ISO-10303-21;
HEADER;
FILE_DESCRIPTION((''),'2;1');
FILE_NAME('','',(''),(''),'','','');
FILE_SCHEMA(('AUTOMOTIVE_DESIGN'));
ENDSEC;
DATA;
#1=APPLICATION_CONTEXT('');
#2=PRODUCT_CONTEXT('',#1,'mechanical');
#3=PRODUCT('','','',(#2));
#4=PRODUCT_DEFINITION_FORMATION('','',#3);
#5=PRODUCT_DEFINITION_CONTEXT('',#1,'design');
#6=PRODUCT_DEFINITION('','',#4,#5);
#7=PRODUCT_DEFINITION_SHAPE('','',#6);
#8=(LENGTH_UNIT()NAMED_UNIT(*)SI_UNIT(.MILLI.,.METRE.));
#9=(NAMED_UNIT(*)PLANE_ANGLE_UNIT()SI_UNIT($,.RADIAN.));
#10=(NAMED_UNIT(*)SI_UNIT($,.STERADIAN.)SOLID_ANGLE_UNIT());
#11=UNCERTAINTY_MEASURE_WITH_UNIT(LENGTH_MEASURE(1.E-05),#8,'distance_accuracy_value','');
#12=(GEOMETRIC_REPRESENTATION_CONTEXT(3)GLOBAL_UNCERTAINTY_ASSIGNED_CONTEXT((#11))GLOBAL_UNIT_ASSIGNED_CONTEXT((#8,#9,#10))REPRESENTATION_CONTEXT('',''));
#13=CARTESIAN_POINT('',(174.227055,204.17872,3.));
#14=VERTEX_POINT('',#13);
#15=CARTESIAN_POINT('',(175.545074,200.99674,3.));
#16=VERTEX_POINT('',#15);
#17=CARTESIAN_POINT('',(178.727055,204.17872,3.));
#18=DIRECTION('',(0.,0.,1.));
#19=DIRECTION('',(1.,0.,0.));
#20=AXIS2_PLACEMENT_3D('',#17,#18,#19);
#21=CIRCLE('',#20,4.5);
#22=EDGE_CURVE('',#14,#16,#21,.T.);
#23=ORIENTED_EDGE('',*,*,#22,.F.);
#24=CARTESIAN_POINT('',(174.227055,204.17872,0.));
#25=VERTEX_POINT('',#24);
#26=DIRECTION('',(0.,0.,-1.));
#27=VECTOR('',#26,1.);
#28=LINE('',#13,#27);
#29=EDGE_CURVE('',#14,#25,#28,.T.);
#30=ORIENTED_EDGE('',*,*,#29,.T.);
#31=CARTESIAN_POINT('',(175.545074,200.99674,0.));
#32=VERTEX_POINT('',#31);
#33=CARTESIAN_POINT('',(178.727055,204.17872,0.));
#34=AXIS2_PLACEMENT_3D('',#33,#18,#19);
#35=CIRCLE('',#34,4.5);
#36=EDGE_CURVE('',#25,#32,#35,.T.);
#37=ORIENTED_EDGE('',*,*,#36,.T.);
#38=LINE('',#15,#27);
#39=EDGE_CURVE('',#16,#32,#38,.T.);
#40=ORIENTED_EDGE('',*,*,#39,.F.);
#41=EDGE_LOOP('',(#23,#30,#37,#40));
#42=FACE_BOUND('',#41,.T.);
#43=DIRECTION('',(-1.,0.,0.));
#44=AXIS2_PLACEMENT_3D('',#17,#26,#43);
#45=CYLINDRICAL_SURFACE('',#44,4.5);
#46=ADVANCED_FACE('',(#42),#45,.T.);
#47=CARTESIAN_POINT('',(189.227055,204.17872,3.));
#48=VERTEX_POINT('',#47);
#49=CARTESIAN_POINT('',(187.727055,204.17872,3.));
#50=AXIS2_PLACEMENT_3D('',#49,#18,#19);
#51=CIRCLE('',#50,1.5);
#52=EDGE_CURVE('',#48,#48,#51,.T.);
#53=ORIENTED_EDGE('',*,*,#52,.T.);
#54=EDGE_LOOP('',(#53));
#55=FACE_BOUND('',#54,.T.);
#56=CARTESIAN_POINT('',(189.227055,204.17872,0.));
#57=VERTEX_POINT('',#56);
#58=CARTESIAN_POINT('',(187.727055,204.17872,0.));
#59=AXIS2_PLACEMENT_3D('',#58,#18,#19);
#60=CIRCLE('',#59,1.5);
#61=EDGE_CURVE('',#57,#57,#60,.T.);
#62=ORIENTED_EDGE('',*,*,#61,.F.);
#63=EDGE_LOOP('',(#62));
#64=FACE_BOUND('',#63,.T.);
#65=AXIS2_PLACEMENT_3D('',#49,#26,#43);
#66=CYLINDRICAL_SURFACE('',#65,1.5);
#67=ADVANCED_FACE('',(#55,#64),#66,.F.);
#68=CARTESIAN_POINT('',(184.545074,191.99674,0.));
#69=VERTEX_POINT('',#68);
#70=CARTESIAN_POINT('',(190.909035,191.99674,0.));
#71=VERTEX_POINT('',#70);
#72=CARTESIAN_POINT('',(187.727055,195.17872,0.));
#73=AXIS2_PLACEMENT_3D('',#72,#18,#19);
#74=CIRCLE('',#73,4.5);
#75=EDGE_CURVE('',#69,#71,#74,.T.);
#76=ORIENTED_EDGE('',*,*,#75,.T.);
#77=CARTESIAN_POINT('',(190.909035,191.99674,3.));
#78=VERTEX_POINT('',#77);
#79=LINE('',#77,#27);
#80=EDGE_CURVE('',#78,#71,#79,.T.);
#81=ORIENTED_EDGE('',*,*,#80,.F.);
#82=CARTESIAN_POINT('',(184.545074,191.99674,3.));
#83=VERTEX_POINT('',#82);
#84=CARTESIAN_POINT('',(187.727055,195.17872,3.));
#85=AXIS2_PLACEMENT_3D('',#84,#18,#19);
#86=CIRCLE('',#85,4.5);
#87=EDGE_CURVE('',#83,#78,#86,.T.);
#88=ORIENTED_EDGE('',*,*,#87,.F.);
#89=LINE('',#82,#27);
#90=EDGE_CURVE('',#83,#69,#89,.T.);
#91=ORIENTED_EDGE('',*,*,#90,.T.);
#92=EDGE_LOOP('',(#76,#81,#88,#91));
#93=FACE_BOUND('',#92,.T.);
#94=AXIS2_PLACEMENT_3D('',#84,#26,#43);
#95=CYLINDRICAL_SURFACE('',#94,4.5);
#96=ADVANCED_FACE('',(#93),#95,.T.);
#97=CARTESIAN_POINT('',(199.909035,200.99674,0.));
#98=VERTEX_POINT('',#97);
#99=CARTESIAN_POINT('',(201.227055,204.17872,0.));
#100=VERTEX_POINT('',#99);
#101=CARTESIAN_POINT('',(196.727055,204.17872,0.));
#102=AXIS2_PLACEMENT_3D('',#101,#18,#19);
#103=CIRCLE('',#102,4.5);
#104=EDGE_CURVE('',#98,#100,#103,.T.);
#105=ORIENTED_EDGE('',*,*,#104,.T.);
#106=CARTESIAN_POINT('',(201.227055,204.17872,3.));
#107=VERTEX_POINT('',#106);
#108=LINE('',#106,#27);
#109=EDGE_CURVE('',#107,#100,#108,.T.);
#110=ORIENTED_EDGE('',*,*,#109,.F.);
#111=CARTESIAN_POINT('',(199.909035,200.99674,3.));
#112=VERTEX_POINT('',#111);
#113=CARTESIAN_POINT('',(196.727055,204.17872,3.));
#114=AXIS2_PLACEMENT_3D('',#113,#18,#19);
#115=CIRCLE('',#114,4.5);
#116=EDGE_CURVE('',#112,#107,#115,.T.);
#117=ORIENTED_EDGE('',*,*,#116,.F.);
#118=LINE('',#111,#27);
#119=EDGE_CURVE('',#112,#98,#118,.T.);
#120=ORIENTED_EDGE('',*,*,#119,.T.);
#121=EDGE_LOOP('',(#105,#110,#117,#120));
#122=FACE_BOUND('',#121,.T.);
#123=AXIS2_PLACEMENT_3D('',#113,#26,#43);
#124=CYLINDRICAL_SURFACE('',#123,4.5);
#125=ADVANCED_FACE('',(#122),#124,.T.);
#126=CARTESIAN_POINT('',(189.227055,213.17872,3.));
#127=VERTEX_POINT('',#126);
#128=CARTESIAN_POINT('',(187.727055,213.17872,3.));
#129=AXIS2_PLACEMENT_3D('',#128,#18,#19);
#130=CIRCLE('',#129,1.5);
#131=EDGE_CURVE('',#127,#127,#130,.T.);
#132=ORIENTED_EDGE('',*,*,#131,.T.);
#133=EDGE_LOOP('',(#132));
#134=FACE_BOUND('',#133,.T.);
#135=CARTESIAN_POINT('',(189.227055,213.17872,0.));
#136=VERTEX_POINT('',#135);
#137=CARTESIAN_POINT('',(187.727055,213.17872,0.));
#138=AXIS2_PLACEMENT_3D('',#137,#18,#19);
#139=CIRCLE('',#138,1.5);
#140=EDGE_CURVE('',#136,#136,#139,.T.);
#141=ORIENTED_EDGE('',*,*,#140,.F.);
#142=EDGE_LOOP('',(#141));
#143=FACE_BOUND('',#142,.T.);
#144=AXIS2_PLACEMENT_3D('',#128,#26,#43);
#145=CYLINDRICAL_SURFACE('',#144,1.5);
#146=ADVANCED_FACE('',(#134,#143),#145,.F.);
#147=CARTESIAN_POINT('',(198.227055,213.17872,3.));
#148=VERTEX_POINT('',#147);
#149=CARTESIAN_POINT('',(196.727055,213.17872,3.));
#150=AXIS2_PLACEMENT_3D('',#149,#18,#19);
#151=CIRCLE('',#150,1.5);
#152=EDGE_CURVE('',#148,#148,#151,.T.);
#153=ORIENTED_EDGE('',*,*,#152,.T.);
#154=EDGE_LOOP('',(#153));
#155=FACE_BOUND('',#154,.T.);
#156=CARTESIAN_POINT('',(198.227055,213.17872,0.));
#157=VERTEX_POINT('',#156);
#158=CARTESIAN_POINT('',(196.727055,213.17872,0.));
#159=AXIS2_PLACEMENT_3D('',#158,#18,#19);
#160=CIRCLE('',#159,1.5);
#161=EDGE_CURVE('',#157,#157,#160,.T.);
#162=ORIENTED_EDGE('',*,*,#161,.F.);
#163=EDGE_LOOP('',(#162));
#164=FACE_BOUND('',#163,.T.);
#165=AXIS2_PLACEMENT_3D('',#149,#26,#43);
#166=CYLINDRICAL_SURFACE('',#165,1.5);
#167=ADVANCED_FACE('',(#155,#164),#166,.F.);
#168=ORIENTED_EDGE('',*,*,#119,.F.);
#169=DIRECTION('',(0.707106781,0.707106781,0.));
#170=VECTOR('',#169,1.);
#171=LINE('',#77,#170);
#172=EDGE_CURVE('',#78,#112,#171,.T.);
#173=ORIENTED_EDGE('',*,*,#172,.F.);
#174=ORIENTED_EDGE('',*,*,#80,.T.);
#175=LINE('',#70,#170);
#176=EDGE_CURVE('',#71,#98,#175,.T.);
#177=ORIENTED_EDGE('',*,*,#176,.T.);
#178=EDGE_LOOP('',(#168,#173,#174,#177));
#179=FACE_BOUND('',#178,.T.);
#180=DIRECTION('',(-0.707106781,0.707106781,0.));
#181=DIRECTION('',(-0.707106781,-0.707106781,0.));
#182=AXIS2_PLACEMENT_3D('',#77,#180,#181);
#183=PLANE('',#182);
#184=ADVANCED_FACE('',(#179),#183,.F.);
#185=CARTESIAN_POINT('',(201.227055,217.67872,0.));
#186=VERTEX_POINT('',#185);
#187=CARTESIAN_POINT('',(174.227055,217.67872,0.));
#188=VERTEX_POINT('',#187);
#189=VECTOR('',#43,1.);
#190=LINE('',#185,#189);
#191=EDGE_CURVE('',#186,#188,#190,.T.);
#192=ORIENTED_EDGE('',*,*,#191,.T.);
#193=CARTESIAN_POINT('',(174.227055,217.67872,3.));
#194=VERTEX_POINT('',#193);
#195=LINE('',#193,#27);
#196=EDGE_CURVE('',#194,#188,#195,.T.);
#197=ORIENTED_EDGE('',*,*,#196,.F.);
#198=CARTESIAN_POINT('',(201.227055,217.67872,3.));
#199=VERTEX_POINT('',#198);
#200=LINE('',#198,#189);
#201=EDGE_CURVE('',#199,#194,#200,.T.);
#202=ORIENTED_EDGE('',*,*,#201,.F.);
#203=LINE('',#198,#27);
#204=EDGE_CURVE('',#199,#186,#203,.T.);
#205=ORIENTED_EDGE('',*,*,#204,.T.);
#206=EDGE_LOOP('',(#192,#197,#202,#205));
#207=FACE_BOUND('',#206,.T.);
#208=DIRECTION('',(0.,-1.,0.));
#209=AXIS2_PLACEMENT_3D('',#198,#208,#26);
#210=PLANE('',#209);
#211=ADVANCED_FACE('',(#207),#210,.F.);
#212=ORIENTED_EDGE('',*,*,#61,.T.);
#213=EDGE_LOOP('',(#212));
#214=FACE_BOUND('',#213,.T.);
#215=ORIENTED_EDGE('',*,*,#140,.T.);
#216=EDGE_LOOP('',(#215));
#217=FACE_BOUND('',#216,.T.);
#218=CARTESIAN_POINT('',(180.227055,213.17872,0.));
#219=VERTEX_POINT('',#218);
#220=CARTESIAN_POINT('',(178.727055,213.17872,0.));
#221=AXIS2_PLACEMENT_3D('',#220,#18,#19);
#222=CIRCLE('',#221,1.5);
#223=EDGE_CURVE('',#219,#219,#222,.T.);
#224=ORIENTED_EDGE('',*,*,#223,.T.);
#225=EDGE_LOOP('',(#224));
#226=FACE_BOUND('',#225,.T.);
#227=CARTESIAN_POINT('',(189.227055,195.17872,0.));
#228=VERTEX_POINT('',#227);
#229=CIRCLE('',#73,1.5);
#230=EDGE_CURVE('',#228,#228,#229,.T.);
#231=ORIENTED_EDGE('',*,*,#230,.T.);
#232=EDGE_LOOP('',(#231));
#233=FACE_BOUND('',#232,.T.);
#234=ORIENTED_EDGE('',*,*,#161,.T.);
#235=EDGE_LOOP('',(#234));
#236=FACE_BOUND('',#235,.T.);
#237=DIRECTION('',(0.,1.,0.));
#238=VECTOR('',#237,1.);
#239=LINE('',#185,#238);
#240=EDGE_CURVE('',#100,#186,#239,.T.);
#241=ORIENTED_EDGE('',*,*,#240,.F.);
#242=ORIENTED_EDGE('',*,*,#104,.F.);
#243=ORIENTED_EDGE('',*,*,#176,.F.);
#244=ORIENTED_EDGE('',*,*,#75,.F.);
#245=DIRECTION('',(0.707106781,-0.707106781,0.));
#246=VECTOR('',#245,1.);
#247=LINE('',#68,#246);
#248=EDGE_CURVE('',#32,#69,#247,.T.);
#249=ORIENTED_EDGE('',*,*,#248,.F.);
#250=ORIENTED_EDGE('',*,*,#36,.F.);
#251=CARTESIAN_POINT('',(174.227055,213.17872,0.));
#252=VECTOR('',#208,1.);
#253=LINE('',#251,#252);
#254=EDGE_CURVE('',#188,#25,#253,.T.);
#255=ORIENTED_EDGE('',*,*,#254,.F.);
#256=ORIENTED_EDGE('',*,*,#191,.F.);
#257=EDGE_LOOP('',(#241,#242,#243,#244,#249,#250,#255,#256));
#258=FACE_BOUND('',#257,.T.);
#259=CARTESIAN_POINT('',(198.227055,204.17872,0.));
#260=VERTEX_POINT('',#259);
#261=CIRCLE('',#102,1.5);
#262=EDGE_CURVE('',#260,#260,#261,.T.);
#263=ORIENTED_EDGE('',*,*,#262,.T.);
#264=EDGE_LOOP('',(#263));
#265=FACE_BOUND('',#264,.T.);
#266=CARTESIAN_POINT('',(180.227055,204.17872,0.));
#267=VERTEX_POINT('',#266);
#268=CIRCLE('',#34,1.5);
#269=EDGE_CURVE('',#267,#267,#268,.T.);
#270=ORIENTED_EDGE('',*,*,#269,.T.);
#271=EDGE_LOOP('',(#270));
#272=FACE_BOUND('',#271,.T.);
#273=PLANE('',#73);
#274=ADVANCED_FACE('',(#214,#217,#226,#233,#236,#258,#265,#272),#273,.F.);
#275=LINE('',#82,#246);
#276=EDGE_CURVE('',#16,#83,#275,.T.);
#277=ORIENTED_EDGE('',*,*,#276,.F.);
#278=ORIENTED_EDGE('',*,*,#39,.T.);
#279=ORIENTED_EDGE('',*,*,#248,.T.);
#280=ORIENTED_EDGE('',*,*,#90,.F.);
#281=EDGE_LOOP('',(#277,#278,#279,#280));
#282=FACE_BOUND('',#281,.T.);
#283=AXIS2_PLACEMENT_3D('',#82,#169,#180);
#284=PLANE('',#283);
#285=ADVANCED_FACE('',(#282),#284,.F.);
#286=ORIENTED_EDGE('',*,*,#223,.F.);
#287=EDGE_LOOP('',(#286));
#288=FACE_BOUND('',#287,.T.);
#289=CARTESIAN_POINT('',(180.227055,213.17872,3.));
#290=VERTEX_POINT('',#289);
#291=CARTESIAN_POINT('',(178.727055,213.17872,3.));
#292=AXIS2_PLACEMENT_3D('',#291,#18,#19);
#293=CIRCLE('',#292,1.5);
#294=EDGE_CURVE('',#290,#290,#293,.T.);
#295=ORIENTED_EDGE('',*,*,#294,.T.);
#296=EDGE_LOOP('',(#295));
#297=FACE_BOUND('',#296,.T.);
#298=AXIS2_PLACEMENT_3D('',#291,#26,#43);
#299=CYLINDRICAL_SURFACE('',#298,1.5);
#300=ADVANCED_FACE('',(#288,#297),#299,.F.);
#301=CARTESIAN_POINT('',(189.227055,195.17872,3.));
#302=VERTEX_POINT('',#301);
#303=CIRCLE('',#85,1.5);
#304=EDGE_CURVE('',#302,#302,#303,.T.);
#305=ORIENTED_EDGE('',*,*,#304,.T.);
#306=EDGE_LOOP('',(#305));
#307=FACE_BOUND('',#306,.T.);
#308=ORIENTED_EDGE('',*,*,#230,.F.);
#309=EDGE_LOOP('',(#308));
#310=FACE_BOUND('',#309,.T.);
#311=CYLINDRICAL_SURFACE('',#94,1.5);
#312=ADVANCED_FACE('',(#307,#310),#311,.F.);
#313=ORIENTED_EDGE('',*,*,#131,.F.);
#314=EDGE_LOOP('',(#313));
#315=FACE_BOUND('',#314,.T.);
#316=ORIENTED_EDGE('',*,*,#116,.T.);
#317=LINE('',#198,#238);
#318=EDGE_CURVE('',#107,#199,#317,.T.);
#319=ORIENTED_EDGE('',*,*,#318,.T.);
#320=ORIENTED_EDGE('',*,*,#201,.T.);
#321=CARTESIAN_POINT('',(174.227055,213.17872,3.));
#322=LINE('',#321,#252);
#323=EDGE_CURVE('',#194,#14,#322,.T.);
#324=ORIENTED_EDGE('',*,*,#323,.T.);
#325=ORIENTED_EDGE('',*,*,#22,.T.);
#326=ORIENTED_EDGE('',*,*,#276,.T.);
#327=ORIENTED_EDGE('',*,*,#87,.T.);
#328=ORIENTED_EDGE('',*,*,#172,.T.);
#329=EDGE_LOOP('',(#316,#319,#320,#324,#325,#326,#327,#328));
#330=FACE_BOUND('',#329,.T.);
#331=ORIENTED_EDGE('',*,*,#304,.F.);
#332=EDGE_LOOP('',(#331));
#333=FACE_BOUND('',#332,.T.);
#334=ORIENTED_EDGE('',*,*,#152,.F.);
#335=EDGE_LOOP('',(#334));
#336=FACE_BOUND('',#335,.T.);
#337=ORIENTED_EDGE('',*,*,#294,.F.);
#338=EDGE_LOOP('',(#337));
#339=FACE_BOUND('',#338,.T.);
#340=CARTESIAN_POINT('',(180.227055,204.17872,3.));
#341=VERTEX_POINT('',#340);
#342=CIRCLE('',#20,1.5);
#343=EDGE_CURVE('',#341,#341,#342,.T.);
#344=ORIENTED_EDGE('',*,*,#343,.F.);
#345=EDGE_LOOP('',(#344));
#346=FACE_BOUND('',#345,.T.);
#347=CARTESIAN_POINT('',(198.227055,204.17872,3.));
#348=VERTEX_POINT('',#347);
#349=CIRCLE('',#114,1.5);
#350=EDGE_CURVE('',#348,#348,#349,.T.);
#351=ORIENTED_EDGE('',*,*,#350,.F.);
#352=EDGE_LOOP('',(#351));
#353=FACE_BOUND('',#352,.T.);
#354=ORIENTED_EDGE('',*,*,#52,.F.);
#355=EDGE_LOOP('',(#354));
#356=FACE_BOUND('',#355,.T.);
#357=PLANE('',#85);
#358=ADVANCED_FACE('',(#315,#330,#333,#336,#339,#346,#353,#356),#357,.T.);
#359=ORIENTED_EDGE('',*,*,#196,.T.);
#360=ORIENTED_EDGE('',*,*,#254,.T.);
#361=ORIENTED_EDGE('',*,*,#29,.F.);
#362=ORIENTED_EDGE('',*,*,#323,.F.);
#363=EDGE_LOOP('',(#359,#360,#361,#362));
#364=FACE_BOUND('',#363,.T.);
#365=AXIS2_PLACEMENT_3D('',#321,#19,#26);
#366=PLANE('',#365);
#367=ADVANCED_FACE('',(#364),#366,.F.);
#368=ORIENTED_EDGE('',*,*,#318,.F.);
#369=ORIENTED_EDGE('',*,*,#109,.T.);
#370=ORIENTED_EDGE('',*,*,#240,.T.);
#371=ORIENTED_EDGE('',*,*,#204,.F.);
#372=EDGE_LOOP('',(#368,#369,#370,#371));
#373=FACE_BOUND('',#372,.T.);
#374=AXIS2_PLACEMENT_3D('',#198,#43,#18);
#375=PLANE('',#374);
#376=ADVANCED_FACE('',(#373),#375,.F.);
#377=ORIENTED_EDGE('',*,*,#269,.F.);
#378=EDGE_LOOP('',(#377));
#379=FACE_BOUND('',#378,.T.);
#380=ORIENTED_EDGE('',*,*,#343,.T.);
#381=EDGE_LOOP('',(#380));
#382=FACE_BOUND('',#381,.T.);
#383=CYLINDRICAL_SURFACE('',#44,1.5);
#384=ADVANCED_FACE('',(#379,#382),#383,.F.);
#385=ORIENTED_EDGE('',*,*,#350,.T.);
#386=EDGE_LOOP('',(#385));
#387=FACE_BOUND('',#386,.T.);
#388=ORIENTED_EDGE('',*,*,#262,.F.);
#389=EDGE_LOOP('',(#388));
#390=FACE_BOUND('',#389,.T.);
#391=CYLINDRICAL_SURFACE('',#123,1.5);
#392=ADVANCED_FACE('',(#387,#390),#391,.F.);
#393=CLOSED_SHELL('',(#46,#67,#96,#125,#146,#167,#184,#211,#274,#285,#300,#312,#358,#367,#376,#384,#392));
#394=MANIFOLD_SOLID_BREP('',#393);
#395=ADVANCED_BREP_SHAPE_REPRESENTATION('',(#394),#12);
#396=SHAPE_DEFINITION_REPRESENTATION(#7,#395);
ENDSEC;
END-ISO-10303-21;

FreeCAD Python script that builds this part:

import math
import FreeCAD as App
import Part
import Sketcher

V = App.Vector

doc = App.newDocument("Part")
body = doc.addObject("PartDesign::Body", "Body")

sketch1 = body.newObject("Sketcher::SketchObject", "Sketch")
sketch1.AttachmentSupport = (doc.getObject("XY_Plane"), [""])
sketch1.MapMode = "FlatFace"
sketch1.addGeometry(Part.ArcOfCircle(Part.Circle(V(178.7, 204.2, 0), V(0, 0, 1), 4.5), math.radians(180), math.radians(225)), False)
sketch1.addGeometry(Part.LineSegment(V(175.5, 201, 0), V(184.5, 192, 0)), False)
sketch1.addGeometry(Part.ArcOfCircle(Part.Circle(V(187.7, 195.2, 0), V(0, 0, 1), 4.5), math.radians(-135), math.radians(-45)), False)
sketch1.addGeometry(Part.LineSegment(V(190.9, 192, 0), V(199.9, 201, 0)), False)
sketch1.addGeometry(Part.ArcOfCircle(Part.Circle(V(196.7, 204.2, 0), V(0, 0, 1), 4.5), math.radians(-45), math.radians(0)), False)
sketch1.addGeometry(Part.LineSegment(V(201.2, 204.2, 0), V(201.2, 217.7, 0)), False)
sketch1.addGeometry(Part.LineSegment(V(201.2, 217.7, 0), V(174.2, 217.7, 0)), False)
sketch1.addGeometry(Part.LineSegment(V(174.2, 217.7, 0), V(174.2, 204.2, 0)), False)
sketch1.addGeometry(Part.Circle(V(187.7, 195.2, 0), V(0, 0, 1), 1.5), False)
sketch1.addGeometry(Part.Circle(V(178.7, 204.2, 0), V(0, 0, 1), 1.5), False)
sketch1.addGeometry(Part.Circle(V(178.7, 213.2, 0), V(0, 0, 1), 1.5), False)
sketch1.addGeometry(Part.Circle(V(187.7, 204.2, 0), V(0, 0, 1), 1.5), False)
sketch1.addGeometry(Part.Circle(V(196.7, 204.2, 0), V(0, 0, 1), 1.5), False)
sketch1.addGeometry(Part.Circle(V(187.7, 213.2, 0), V(0, 0, 1), 1.5), False)
sketch1.addGeometry(Part.Circle(V(196.7, 213.2, 0), V(0, 0, 1), 1.5), False)
sketch1.addConstraint(Sketcher.Constraint("Tangent", 0, 2, 1, 1))
sketch1.addConstraint(Sketcher.Constraint("Tangent", 1, 2, 2, 1))
sketch1.addConstraint(Sketcher.Constraint("Tangent", 2, 2, 3, 1))
sketch1.addConstraint(Sketcher.Constraint("Tangent", 3, 2, 4, 1))
sketch1.addConstraint(Sketcher.Constraint("Tangent", 4, 2, 5, 1))
sketch1.addConstraint(Sketcher.Constraint("Coincident", 5, 2, 6, 1))
sketch1.addConstraint(Sketcher.Constraint("Coincident", 6, 2, 7, 1))
sketch1.addConstraint(Sketcher.Constraint("Tangent", 7, 2, 0, 1))
sketch1.addConstraint(Sketcher.Constraint("Vertical", 5))
sketch1.addConstraint(Sketcher.Constraint("Horizontal", 6))
sketch1.addConstraint(Sketcher.Constraint("Vertical", 7))
sketch1.addConstraint(Sketcher.Constraint("Coincident", 8, 3, 2, 3))
sketch1.addConstraint(Sketcher.Constraint("Coincident", 9, 3, 0, 3))
sketch1.addConstraint(Sketcher.Constraint("Coincident", 12, 3, 4, 3))
sketch1.addConstraint(Sketcher.Constraint("Equal", 0, 2))
sketch1.addConstraint(Sketcher.Constraint("Equal", 2, 4))
sketch1.addConstraint(Sketcher.Constraint("Equal", 8, 9))
sketch1.addConstraint(Sketcher.Constraint("Equal", 9, 10))
sketch1.addConstraint(Sketcher.Constraint("Equal", 10, 11))
sketch1.addConstraint(Sketcher.Constraint("Equal", 11, 12))
sketch1.addConstraint(Sketcher.Constraint("Equal", 12, 13))
sketch1.addConstraint(Sketcher.Constraint("Equal", 13, 14))
sketch1.addConstraint(Sketcher.Constraint("Perpendicular", 1, 3))
sketch1.addConstraint(Sketcher.Constraint("Horizontal", 0, 3, 4, 3))
sketch1.addConstraint(Sketcher.Constraint("Horizontal", 9, 3, 11, 3))
sketch1.addConstraint(Sketcher.Constraint("Horizontal", 10, 3, 13, 3))
sketch1.addConstraint(Sketcher.Constraint("Horizontal", 13, 3, 14, 3))
sketch1.addConstraint(Sketcher.Constraint("Horizontal", 1, 2, 2, 2))
sketch1.addConstraint(Sketcher.Constraint("Vertical", 9, 3, 10, 3))
sketch1.addConstraint(Sketcher.Constraint("Vertical", 8, 3, 11, 3))
sketch1.addConstraint(Sketcher.Constraint("Vertical", 11, 3, 13, 3))
sketch1.addConstraint(Sketcher.Constraint("Vertical", 12, 3, 14, 3))
sketch1.addConstraint(Sketcher.Constraint("Diameter", 8, 3.0))
sketch1.addConstraint(Sketcher.Constraint("Radius", 0, 4.5))
sketch1.addConstraint(Sketcher.Constraint("DistanceX", 6, 2, 6, 1, 27.0))
sketch1.addConstraint(Sketcher.Constraint("DistanceY", 5, 1, 5, 2, 13.5))
sketch1.addConstraint(Sketcher.Constraint("DistanceY", 9, 3, 10, 3, 9.0))
sketch1.addConstraint(Sketcher.Constraint("DistanceY", -1, 1, 0, 3, 204.17872))
sketch1.addConstraint(Sketcher.Constraint("DistanceX", -1, 1, 0, 3, 178.727055))
pad1 = body.newObject("PartDesign::Pad", "Pad")
pad1.Profile = sketch1
pad1.Length = 3

doc.recompute()
